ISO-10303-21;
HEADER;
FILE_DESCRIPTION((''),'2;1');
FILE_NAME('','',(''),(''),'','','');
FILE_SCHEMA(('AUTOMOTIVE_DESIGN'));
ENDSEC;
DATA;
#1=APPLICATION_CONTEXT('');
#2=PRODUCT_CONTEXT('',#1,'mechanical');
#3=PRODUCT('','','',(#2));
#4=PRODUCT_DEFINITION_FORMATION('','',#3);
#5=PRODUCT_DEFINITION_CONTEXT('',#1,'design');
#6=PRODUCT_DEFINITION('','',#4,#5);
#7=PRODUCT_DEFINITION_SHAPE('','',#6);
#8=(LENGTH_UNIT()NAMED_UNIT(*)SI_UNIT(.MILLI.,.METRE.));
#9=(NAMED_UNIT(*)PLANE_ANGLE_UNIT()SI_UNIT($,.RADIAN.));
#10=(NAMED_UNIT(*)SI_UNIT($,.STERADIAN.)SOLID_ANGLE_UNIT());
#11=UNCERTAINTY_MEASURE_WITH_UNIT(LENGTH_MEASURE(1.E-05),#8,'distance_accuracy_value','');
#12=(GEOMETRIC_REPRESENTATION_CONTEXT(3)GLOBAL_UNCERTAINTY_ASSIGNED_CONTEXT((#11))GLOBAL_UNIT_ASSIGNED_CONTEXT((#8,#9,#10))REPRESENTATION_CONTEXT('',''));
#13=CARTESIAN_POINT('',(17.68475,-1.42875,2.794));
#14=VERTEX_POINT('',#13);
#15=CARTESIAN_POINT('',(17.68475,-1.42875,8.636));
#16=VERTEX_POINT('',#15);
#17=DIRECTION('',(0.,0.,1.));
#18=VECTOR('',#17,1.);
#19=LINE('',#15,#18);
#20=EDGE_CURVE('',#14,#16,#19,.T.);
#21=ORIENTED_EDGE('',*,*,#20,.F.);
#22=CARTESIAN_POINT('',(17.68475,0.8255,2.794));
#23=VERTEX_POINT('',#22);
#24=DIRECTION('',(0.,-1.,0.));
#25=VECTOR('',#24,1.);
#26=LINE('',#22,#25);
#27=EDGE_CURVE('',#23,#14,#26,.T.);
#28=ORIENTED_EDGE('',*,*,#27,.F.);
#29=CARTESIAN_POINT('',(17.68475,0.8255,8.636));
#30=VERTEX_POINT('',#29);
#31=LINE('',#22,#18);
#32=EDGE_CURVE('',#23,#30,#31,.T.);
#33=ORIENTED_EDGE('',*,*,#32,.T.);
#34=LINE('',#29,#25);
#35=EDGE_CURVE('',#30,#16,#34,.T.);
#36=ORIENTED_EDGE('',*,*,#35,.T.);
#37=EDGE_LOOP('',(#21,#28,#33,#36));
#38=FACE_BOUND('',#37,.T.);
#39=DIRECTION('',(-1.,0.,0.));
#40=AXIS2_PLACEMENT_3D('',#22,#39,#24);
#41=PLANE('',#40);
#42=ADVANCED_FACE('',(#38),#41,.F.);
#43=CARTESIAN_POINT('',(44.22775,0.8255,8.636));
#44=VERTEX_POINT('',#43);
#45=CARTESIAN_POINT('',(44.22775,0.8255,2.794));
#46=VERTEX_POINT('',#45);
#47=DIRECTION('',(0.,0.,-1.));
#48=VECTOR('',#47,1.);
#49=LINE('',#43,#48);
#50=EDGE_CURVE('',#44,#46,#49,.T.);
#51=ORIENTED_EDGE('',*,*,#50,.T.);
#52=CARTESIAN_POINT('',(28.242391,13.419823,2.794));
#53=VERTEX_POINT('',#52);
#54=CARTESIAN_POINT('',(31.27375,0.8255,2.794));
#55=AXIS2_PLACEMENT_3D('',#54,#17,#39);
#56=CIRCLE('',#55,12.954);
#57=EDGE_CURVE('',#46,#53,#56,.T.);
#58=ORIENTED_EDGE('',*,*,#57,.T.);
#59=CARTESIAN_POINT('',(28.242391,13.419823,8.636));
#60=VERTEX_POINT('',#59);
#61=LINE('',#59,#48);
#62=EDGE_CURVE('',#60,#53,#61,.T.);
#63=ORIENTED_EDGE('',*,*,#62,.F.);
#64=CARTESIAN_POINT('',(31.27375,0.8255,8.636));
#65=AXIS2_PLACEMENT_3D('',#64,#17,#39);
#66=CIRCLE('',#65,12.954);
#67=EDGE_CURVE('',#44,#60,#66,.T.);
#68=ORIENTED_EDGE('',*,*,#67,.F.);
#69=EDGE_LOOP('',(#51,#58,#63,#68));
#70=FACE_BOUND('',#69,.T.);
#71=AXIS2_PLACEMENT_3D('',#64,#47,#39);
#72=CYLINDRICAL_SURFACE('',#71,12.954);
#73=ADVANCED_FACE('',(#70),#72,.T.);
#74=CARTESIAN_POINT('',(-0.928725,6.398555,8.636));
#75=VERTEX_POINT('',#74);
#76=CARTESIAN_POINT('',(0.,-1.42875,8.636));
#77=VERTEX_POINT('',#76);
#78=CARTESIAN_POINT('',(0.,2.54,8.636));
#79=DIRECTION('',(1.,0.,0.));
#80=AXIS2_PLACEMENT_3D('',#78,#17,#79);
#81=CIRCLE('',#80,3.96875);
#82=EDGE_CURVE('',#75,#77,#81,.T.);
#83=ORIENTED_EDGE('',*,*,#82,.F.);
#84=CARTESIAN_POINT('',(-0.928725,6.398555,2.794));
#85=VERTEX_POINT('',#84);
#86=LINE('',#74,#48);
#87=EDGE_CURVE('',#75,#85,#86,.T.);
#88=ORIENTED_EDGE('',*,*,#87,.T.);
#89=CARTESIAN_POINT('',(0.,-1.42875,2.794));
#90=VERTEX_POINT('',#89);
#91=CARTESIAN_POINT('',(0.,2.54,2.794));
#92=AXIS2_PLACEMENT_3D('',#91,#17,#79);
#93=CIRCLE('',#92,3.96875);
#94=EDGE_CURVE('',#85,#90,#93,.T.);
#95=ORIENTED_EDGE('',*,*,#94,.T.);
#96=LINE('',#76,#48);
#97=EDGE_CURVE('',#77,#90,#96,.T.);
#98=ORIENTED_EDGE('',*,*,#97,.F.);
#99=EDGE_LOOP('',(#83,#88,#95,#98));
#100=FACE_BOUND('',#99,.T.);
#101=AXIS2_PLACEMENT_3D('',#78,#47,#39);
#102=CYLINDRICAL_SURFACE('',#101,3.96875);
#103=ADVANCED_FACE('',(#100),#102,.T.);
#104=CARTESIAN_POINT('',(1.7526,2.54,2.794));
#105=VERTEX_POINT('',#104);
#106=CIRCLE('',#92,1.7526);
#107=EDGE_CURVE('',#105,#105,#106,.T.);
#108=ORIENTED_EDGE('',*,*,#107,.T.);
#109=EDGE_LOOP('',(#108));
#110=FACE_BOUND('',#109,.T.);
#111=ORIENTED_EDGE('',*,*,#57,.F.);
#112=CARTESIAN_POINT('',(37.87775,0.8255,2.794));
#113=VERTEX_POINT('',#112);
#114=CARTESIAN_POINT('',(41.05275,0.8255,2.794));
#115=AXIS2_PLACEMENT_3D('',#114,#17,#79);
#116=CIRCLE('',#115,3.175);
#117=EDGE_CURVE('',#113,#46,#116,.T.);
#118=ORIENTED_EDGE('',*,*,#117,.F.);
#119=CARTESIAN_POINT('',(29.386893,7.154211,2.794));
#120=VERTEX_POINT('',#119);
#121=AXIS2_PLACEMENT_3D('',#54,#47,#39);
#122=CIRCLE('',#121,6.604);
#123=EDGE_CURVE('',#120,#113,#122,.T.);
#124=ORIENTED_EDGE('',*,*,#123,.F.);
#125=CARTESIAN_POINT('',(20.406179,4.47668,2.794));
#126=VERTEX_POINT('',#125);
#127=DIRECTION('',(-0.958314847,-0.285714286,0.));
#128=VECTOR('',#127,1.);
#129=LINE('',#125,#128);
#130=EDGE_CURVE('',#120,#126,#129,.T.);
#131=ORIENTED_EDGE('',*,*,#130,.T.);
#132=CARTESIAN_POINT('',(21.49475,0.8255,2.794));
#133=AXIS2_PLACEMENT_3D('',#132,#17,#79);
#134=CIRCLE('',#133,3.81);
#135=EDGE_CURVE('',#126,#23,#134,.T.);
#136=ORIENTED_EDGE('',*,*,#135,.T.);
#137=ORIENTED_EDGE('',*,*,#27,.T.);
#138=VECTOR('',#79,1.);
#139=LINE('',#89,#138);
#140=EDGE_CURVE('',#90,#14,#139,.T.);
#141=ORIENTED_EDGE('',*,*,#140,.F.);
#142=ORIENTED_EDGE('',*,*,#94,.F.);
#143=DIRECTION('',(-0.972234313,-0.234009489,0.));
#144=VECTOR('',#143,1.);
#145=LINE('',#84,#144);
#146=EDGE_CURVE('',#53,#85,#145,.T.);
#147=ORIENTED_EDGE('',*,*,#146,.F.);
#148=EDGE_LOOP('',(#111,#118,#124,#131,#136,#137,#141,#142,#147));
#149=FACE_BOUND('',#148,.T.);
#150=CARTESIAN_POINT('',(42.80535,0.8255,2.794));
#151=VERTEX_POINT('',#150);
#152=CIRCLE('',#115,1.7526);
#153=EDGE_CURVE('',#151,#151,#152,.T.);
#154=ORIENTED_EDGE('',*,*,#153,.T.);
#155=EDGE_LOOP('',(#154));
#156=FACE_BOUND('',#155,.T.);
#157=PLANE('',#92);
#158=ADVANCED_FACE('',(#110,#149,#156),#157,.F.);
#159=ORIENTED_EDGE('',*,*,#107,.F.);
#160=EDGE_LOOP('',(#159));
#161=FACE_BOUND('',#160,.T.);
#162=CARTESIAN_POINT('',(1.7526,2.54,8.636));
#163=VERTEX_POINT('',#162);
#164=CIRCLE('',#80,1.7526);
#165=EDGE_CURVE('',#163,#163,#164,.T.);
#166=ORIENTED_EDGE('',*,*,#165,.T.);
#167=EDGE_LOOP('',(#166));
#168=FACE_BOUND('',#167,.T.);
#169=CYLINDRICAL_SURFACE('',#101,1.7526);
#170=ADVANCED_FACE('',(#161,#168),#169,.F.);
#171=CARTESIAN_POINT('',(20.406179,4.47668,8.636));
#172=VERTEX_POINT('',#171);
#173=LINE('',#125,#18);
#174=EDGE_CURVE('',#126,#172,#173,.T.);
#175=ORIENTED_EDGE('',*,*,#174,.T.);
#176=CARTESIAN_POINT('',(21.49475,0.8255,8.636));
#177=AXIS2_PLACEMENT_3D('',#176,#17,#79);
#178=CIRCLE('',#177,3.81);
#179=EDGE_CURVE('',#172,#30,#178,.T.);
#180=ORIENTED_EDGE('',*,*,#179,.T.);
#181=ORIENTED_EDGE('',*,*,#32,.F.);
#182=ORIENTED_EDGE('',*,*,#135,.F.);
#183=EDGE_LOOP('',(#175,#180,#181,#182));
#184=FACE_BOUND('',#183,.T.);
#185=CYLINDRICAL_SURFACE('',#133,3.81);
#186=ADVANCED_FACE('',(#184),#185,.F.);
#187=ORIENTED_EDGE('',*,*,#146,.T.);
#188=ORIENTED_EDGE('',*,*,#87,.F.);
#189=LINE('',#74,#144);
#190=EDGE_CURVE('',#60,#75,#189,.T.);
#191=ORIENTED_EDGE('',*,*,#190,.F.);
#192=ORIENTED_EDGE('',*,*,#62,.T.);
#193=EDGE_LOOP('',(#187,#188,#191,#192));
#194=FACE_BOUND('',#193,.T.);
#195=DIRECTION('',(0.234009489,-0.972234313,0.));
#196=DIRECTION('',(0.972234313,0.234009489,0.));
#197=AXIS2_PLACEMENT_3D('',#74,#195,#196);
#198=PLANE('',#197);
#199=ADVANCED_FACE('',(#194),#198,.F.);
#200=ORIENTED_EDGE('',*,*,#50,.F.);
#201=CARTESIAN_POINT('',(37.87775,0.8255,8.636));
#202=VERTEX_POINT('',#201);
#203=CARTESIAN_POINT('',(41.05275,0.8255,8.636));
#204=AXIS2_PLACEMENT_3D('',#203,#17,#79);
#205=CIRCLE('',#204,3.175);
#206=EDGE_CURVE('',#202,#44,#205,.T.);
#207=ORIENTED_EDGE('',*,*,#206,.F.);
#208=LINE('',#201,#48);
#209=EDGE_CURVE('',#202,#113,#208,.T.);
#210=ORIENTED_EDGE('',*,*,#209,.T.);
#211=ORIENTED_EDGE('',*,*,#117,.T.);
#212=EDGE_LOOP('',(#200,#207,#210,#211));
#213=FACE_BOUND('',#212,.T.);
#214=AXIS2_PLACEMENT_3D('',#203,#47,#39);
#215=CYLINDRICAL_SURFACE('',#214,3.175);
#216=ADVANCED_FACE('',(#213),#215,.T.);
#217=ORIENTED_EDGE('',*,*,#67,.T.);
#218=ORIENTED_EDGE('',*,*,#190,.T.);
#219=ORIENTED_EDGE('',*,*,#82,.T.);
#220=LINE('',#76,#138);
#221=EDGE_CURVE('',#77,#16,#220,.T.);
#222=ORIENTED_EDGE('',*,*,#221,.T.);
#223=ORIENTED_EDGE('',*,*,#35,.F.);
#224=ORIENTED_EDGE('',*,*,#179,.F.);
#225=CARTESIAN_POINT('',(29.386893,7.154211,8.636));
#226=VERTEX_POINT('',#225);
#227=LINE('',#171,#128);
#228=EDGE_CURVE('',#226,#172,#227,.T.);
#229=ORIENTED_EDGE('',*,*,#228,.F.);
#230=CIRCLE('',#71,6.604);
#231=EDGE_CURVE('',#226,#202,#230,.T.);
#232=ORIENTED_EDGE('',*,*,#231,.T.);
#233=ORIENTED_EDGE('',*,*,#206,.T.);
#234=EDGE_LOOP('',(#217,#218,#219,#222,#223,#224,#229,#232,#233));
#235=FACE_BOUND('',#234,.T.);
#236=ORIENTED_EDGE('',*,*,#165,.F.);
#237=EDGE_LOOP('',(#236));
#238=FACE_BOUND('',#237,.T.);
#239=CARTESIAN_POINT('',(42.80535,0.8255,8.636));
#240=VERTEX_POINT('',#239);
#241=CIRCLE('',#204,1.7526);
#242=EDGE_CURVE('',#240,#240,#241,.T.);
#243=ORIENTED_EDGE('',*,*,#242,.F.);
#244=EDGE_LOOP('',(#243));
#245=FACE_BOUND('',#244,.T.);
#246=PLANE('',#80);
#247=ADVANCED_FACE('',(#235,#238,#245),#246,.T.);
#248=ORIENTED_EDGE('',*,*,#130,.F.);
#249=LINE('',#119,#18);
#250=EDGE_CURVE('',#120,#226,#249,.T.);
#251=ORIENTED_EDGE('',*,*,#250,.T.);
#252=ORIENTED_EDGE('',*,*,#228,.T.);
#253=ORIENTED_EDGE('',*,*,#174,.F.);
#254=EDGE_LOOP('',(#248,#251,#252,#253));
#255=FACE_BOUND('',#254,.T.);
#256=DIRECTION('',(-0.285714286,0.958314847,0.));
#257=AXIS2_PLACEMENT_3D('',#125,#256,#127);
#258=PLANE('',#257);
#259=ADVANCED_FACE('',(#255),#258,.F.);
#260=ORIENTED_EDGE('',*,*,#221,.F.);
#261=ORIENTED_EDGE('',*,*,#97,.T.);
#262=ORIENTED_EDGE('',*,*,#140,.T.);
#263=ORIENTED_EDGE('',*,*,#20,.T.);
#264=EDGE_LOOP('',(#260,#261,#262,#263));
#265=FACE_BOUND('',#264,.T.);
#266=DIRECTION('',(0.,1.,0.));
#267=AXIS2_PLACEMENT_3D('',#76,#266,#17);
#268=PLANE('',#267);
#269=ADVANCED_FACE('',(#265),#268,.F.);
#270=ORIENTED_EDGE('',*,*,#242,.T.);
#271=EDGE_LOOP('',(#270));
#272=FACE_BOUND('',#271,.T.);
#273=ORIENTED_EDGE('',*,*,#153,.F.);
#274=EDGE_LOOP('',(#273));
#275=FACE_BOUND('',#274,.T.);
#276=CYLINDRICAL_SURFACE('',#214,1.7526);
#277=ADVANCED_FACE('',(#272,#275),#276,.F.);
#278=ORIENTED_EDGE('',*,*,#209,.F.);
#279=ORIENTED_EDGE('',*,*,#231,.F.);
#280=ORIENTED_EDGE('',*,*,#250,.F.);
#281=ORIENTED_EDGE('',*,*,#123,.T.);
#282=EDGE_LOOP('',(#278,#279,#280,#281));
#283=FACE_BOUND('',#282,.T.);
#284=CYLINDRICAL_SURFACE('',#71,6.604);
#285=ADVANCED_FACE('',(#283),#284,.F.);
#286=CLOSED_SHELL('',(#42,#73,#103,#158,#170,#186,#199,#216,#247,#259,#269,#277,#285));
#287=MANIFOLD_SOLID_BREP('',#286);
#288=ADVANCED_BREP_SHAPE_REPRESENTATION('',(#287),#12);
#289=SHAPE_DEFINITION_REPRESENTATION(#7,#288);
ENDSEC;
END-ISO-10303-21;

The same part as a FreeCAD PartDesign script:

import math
import FreeCAD as App
import Part
import Sketcher
Q = App.Units.Quantity

doc = App.newDocument("Part")
body = doc.addObject("PartDesign::Body", "Body")

# Sketch on XY plane
sketch1 = body.newObject("Sketcher::SketchObject", "Sketch")
sketch1.AttachmentSupport = (doc.getObject("XY_Plane"), [""])
sketch1.MapMode = "FlatFace"
sketch1.AttachmentOffset = App.Placement(App.Vector(0, 0, 0.11 * 25.4), App.Rotation())
sketch1.addGeometry([
    Part.LineSegment(App.Vector(28.2, 13.4, 0), App.Vector(-0.9, 6.4, 0)),  # 0
    Part.ArcOfCircle(Part.Circle(App.Vector(0, 2.5, 0), App.Vector(0, 0, 1), 4), math.radians(104), math.radians(270)),  # 1
    Part.LineSegment(App.Vector(0, -1.4, 0), App.Vector(24.7, -1.4, 0)),  # 2
    Part.LineSegment(App.Vector(24.7, -1.4, 0), App.Vector(24.7, 0.8, 0)),  # 3
    Part.ArcOfCircle(Part.Circle(App.Vector(31.3, 0.8, 0), App.Vector(0, 0, 1), 6.6), math.radians(0), math.radians(180)),  # 4
    Part.ArcOfCircle(Part.Circle(App.Vector(41.1, 0.8, 0), App.Vector(0, 0, 1), 3.2), math.radians(180), math.radians(360)),  # 5
    Part.ArcOfCircle(Part.Circle(App.Vector(31.3, 0.8, 0), App.Vector(0, 0, 1), 13), math.radians(0), math.radians(104)),  # 6
    Part.Circle(App.Vector(41.1, 0.8, 0), App.Vector(0, 0, 1), 1.8),  # 7
    Part.Circle(App.Vector(0, 2.5, 0), App.Vector(0, 0, 1), 1.8),  # 8
], False)
sketch1.addConstraint([
    Sketcher.Constraint("Tangent", 0, 2, 1, 1),
    Sketcher.Constraint("Tangent", 1, 2, 2, 1),
    Sketcher.Constraint("Coincident", 2, 2, 3, 1),
    Sketcher.Constraint("Tangent", 3, 2, 4, 2),
    Sketcher.Constraint("Tangent", 4, 1, 5, 1),
    Sketcher.Constraint("Tangent", 5, 2, 6, 1),
    Sketcher.Constraint("Tangent", 6, 2, 0, 1),
    Sketcher.Constraint("Horizontal", 2),
    Sketcher.Constraint("Vertical", 3),
    Sketcher.Constraint("Coincident", 6, 3, 4, 3),
    Sketcher.Constraint("Coincident", 7, 3, 5, 3),
    Sketcher.Constraint("Coincident", 8, 3, 1, 3),
    Sketcher.Constraint("Equal", 7, 8),
    Sketcher.Constraint("PointOnObject", 1, 3, -2),
    Sketcher.Constraint("Horizontal", 4, 3, 5, 3),
    Sketcher.Constraint("Radius", 4, Q("0.26 in")),
    Sketcher.Constraint("Radius", 6, Q("0.51 in")),
    Sketcher.Constraint("Diameter", 7, Q("0.138 in")),
    Sketcher.Constraint("Radius", 1, Q("0.15625 in")),
    Sketcher.Constraint("DistanceY", -1, 1, 1, 3, Q("0.1 in")),
    Sketcher.Constraint("DistanceY", -1, 1, 4, 3, Q("0.0325 in")),
    Sketcher.Constraint("DistanceX", 2, 1, 2, 2, Q("24.66975 mm")),
])
pad1 = body.newObject("PartDesign::Pad", "Pad")
pad1.Profile = sketch1
pad1.Length = Q("0.23 in")

# Sketch on XY plane
sketch2 = body.newObject("Sketcher::SketchObject", "Sketch001")
sketch2.AttachmentSupport = (doc.getObject("XY_Plane"), [""])
sketch2.MapMode = "FlatFace"
sketch2.AttachmentOffset = App.Placement(App.Vector(0, 0, 0.34 * 25.4), App.Rotation())
sketch2.addGeometry([
    Part.LineSegment(App.Vector(37.9, -10.1, 0), App.Vector(37.9, 0.8, 0)),  # 0
    Part.ArcOfCircle(Part.Circle(App.Vector(31.3, 0.8, 0), App.Vector(0, 0, 1), 6.6), math.radians(0), math.radians(107)),  # 1
    Part.LineSegment(App.Vector(29.4, 7.2, 0), App.Vector(20.4, 4.5, 0)),  # 2
    Part.ArcOfCircle(Part.Circle(App.Vector(21.5, 0.8, 0), App.Vector(0, 0, 1), 3.8), math.radians(107), math.radians(180)),  # 3
    Part.LineSegment(App.Vector(17.7, 0.8, 0), App.Vector(17.7, -10.1, 0)),  # 4
    Part.LineSegment(App.Vector(17.7, -10.1, 0), App.Vector(37.9, -10.1, 0)),  # 5
], False)
sketch2.addConstraint([
    Sketcher.Constraint("Tangent", 0, 2, 1, 1),
    Sketcher.Constraint("Tangent", 1, 2, 2, 1),
    Sketcher.Constraint("Tangent", 2, 2, 3, 1),
    Sketcher.Constraint("Tangent", 3, 2, 4, 1),
    Sketcher.Constraint("Coincident", 4, 2, 5, 1),
    Sketcher.Constraint("Coincident", 5, 2, 0, 1),
    Sketcher.Constraint("Vertical", 0),
    Sketcher.Constraint("Vertical", 4),
    Sketcher.Constraint("Horizontal", 5),
    Sketcher.Constraint("Horizontal", 1, 3, 3, 3),
    Sketcher.Constraint("Radius", 1, Q("0.26 in")),
    Sketcher.Constraint("Radius", 3, Q("0.15 in")),
    Sketcher.Constraint("DistanceX", 5, 1, 5, 2, Q("0.795 in")),
    Sketcher.Constraint("DistanceY", -1, 1, 1, 3, Q("0.0325 in")),
    Sketcher.Constraint("DistanceY", 0, 1, 0, 2, Q("10.878224 mm")),
    Sketcher.Constraint("DistanceX", -1, 1, 1, 3, Q("31.27375 mm")),
])
pocket1 = body.newObject("PartDesign::Pocket", "Pocket")
pocket1.Profile = sketch2
pocket1.Type = "ThroughAll"

doc.recompute()
